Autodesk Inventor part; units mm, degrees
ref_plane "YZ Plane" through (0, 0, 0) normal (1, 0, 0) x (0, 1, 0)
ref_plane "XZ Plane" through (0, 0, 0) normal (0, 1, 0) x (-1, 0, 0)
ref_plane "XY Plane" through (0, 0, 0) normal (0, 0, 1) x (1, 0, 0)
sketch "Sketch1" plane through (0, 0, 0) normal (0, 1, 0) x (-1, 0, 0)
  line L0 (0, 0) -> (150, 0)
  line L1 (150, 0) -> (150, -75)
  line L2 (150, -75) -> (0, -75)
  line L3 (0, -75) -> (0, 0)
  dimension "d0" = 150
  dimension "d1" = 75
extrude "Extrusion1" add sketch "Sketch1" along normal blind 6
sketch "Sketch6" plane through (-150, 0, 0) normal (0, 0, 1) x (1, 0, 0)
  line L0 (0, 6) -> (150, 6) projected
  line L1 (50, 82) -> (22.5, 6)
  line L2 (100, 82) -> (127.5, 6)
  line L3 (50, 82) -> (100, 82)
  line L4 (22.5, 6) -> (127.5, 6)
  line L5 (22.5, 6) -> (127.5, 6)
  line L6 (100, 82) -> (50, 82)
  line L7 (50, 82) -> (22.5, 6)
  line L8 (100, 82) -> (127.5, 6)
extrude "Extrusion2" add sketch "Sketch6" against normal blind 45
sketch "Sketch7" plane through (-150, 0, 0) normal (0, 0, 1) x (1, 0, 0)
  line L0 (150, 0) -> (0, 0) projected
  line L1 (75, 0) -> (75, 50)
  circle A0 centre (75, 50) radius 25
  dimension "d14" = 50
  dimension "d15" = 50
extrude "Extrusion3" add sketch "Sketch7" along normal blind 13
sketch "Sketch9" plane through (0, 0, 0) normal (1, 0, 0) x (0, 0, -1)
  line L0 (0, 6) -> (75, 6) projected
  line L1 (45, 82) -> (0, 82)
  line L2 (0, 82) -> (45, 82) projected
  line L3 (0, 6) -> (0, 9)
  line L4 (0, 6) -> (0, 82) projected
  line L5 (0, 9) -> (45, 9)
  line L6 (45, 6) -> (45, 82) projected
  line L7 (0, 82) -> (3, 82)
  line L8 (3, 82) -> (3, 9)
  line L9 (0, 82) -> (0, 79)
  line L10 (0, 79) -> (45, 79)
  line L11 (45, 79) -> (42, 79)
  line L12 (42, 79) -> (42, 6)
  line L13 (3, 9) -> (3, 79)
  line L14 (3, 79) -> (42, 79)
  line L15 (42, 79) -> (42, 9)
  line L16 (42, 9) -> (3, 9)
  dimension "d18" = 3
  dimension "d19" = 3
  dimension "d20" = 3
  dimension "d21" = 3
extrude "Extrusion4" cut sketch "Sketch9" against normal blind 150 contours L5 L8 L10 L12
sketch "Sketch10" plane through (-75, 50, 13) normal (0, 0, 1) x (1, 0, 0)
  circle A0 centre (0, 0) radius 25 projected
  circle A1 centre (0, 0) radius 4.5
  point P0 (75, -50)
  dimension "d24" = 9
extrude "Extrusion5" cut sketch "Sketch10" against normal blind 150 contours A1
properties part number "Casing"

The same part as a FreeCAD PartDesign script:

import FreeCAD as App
import Part
import Sketcher
from FreeCAD import Vector
Q = App.Units.Quantity

doc = App.newDocument("Part")
params = doc.addObject("Spreadsheet::Sheet", "Params")
for row, (alias, value) in enumerate([
    ("sketch1_width", "150 mm"),
    ("sketch1_height", "75 mm"),
    ("pad1_length", "6 mm"),
    ("sketch2_width", "105 mm"),
    ("sketch2_width2", "50 mm"),
    ("pad2_length", "45 mm"),
    ("sketch3_diameter", "50 mm"),
    ("pad3_length", "13 mm"),
    ("sketch4_width", "70 mm"),
    ("sketch4_height", "39 mm"),
    ("pocket1_length", "150 mm"),
    ("sketch5_diameter", "9 mm"),
    ("pocket2_length", "150 mm"),
], start=1):
    params.set(f"A{row}", alias)
    params.set(f"B{row}", "=" + value)
    params.setAlias(f"B{row}", alias)

body = doc.addObject("PartDesign::Body", "Body")

sketch1 = body.newObject("Sketcher::SketchObject", "Sketch")
sketch1.AttachmentSupport = (doc.getObject("XZ_Plane"), [""])
sketch1.MapMode = "FlatFace"
sketch1.addGeometry([
    Part.LineSegment(Vector(-150, 0, 0), Vector(0, 0, 0)),
    Part.LineSegment(Vector(0, 0, 0), Vector(0, -75, 0)),
    Part.LineSegment(Vector(0, -75, 0), Vector(-150, -75, 0)),
    Part.LineSegment(Vector(-150, -75, 0), Vector(-150, 0, 0)),
], False)
sketch1.addConstraint([
    Sketcher.Constraint("Coincident", 0, 2, 1, 1),
    Sketcher.Constraint("Coincident", 1, 2, 2, 1),
    Sketcher.Constraint("Coincident", 2, 2, 3, 1),
    Sketcher.Constraint("Coincident", 3, 2, 0, 1),
    Sketcher.Constraint("Horizontal", 0),
    Sketcher.Constraint("Vertical", 1),
    Sketcher.Constraint("Horizontal", 2),
    Sketcher.Constraint("Vertical", 3),
    Sketcher.Constraint("Coincident", 0, 2, -1, 1),
    Sketcher.Constraint("DistanceX", 0, 1, 0, 2, Q("150 mm")),
    Sketcher.Constraint("DistanceY", 1, 2, 1, 1, Q("75 mm")),
])
sketch1.setExpression("Constraints[9]", "Params.sketch1_width")
sketch1.setExpression("Constraints[10]", "Params.sketch1_height")
pad1 = body.newObject("PartDesign::Pad", "Pad")
pad1.Profile = sketch1
pad1.setExpression("Length", "Params.pad1_length")
pad1.Reversed = True

sketch2 = body.newObject("Sketcher::SketchObject", "Sketch001")
sketch2.AttachmentSupport = (doc.getObject("XY_Plane"), [""])
sketch2.MapMode = "FlatFace"
sketch2.addGeometry([
    Part.LineSegment(Vector(-100, 82, 0), Vector(-128, 6, 0)),
    Part.LineSegment(Vector(-128, 6, 0), Vector(-22, 6, 0)),
    Part.LineSegment(Vector(-22, 6, 0), Vector(-50, 82, 0)),
    Part.LineSegment(Vector(-50, 82, 0), Vector(-100, 82, 0)),
], False)
sketch2.addConstraint([
    Sketcher.Constraint("Coincident", 0, 2, 1, 1),
    Sketcher.Constraint("Coincident", 1, 2, 2, 1),
    Sketcher.Constraint("Coincident", 2, 2, 3, 1),
    Sketcher.Constraint("Coincident", 3, 2, 0, 1),
    Sketcher.Constraint("Horizontal", 1),
    Sketcher.Constraint("Horizontal", 3),
    Sketcher.Constraint("Equal", 0, 2),
    Sketcher.Constraint("DistanceX", 1, 1, 1, 2, Q("105 mm")),
    Sketcher.Constraint("DistanceX", 3, 2, 3, 1, Q("50 mm")),
    Sketcher.Constraint("DistanceY", -1, 1, 0, 2, Q("6 mm")),
    Sketcher.Constraint("DistanceX", 2, 2, -1, 1, Q("50 mm")),
    Sketcher.Constraint("DistanceY", -1, 1, 2, 2, Q("82 mm")),
])
sketch2.setExpression("Constraints[7]", "Params.sketch2_width")
sketch2.setExpression("Constraints[8]", "Params.sketch2_width2")
pad2 = body.newObject("PartDesign::Pad", "Pad001")
pad2.Profile = sketch2
pad2.setExpression("Length", "Params.pad2_length")
pad2.Reversed = True

sketch3 = body.newObject("Sketcher::SketchObject", "Sketch002")
sketch3.AttachmentSupport = (doc.getObject("XY_Plane"), [""])
sketch3.MapMode = "FlatFace"
sketch3.addGeometry(Part.Circle(Vector(-75, 50, 0), Vector(0, 0, 1), 25), False)
sketch3.addConstraint([
    Sketcher.Constraint("Diameter", 0, Q("50 mm")),
    Sketcher.Constraint("DistanceY", -1, 1, 0, 3, Q("50 mm")),
    Sketcher.Constraint("DistanceX", 0, 3, -1, 1, Q("75 mm")),
])
sketch3.setExpression("Constraints[0]", "Params.sketch3_diameter")
pad3 = body.newObject("PartDesign::Pad", "Pad002")
pad3.Profile = sketch3
pad3.setExpression("Length", "Params.pad3_length")

sketch4 = body.newObject("Sketcher::SketchObject", "Sketch003")
sketch4.AttachmentSupport = (doc.getObject("YZ_Plane"), [""])
sketch4.MapMode = "FlatFace"
sketch4.addGeometry([
    Part.LineSegment(Vector(9, -3, 0), Vector(9, -42, 0)),
    Part.LineSegment(Vector(9, -42, 0), Vector(79, -42, 0)),
    Part.LineSegment(Vector(79, -42, 0), Vector(79, -3, 0)),
    Part.LineSegment(Vector(79, -3, 0), Vector(9, -3, 0)),
], False)
sketch4.addConstraint([
    Sketcher.Constraint("Coincident", 0, 2, 1, 1),
    Sketcher.Constraint("Coincident", 1, 2, 2, 1),
    Sketcher.Constraint("Coincident", 2, 2, 3, 1),
    Sketcher.Constraint("Coincident", 3, 2, 0, 1),
    Sketcher.Constraint("Vertical", 0),
    Sketcher.Constraint("Horizontal", 1),
    Sketcher.Constraint("Vertical", 2),
    Sketcher.Constraint("Horizontal", 3),
    Sketcher.Constraint("DistanceY", 2, 2, -1, 1, Q("3 mm")),
    Sketcher.Constraint("DistanceX", 1, 1, 1, 2, Q("70 mm")),
    Sketcher.Constraint("DistanceY", 0, 2, 0, 1, Q("39 mm")),
    Sketcher.Constraint("DistanceX", -1, 1, 0, 2, Q("9 mm")),
])
sketch4.setExpression("Constraints[9]", "Params.sketch4_width")
sketch4.setExpression("Constraints[10]", "Params.sketch4_height")
pocket1 = body.newObject("PartDesign::Pocket", "Pocket")
pocket1.Profile = sketch4
pocket1.setExpression("Length", "Params.pocket1_length")

sketch5 = body.newObject("Sketcher::SketchObject", "Sketch004")
sketch5.AttachmentSupport = (doc.getObject("XY_Plane"), [""])
sketch5.MapMode = "FlatFace"
sketch5.AttachmentOffset = App.Placement(Vector(0, 0, 13), App.Rotation())
sketch5.addGeometry(Part.Circle(Vector(-75, 50, 0), Vector(0, 0, 1), 4.5), False)
sketch5.addConstraint([
    Sketcher.Constraint("Diameter", 0, Q("9 mm")),
    Sketcher.Constraint("DistanceX", 0, 3, -1, 1, Q("75 mm")),
    Sketcher.Constraint("DistanceY", -1, 1, 0, 3, Q("50 mm")),
])
sketch5.setExpression("Constraints[0]", "Params.sketch5_diameter")
pocket2 = body.newObject("PartDesign::Pocket", "Pocket001")
pocket2.Profile = sketch5
pocket2.setExpression("Length", "Params.pocket2_length")

doc.recompute()
